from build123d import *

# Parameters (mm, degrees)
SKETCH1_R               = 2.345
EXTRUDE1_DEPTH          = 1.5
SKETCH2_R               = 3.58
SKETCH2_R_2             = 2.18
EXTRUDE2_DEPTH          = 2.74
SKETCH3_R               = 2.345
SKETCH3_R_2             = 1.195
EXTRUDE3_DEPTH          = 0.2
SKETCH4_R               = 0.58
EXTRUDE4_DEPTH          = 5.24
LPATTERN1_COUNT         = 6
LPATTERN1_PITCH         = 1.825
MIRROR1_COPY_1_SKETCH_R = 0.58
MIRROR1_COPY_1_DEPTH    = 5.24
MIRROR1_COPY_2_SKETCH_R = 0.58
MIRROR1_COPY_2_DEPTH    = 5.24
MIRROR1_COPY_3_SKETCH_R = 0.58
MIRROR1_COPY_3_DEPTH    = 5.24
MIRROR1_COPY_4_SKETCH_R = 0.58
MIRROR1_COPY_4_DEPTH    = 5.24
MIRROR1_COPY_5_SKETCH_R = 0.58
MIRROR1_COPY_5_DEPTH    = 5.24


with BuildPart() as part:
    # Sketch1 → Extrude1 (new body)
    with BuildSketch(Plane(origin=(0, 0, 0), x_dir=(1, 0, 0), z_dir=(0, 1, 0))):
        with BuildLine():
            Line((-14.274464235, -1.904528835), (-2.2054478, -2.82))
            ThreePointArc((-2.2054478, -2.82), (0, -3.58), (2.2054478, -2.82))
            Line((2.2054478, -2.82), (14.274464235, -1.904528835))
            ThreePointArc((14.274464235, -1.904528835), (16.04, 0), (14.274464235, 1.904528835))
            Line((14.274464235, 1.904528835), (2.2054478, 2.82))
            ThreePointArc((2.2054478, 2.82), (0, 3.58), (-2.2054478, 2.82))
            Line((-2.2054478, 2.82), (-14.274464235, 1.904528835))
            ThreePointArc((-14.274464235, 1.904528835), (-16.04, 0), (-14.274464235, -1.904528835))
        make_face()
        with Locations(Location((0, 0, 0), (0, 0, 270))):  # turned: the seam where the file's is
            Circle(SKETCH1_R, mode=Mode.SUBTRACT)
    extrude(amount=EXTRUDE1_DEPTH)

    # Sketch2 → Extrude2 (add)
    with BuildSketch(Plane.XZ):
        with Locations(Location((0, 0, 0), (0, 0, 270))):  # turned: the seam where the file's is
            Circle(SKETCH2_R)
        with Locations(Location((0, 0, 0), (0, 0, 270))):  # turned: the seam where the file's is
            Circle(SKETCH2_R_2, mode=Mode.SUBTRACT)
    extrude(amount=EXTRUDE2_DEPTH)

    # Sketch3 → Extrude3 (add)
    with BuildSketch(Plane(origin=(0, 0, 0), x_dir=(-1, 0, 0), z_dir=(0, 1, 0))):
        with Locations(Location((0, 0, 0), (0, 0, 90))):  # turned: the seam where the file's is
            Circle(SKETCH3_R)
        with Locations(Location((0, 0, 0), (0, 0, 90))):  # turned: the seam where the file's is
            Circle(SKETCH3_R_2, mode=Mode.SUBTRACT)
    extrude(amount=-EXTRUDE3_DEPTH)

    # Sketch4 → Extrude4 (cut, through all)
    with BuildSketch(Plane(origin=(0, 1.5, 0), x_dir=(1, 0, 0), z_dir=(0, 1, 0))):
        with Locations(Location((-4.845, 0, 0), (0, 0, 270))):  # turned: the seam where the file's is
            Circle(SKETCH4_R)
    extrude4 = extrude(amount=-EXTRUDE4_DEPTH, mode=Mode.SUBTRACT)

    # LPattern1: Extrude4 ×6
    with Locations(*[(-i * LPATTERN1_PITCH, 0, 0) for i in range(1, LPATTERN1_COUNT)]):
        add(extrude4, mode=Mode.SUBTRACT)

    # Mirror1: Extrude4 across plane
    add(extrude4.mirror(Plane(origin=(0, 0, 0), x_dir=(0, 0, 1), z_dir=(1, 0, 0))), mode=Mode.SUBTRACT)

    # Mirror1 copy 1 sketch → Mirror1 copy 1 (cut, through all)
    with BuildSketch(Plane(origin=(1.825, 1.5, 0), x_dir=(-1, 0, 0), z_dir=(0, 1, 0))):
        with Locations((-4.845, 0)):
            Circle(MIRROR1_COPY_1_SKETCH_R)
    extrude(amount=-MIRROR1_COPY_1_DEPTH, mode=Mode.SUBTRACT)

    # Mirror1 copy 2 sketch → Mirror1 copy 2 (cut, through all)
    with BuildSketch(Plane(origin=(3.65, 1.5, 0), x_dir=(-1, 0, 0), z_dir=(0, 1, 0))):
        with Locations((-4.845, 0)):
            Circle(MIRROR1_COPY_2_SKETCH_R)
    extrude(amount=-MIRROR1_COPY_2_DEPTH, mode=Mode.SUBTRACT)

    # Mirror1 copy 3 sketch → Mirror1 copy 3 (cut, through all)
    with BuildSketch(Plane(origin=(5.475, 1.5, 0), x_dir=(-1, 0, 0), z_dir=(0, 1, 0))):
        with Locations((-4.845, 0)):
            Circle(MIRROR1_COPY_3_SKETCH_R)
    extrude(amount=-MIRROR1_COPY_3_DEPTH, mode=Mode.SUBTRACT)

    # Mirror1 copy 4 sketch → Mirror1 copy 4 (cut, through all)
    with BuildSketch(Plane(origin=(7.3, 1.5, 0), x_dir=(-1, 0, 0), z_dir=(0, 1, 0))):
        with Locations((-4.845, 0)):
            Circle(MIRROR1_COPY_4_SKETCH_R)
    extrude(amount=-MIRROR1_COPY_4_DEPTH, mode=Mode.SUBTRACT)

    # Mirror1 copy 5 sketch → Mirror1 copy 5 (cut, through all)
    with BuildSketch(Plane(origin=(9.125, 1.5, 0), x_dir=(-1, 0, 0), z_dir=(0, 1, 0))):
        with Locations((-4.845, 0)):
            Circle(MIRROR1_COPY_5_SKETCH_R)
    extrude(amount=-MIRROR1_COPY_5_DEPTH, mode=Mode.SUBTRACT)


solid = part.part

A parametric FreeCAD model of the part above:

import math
import FreeCAD as App
import Part
import Sketcher
Q = App.Units.Quantity

doc = App.newDocument("Part")
params = doc.addObject("Spreadsheet::Sheet", "Params")
for row, (alias, value) in enumerate([
    ("sketch1_diameter", "4.69 mm"),
    ("sketch1_radius", "3.58 mm"),
    ("sketch1_radius2", "1.91 mm"),
    ("pad1_length", "1.5 mm"),
    ("sketch2_diameter", "7.16 mm"),
    ("sketch2_diameter2", "4.36 mm"),
    ("pad2_length", "2.74 mm"),
    ("sketch3_diameter", "4.69 mm"),
    ("sketch3_diameter2", "2.39 mm"),
    ("pad3_length", "0.2 mm"),
    ("sketch4_diameter", "1.16 mm"),
    ("linearpattern_pitch", "1.825 mm"),
    ("sketch5_diameter", "1.16 mm"),
    ("sketch6_diameter", "1.16 mm"),
    ("sketch7_diameter", "1.16 mm"),
    ("sketch8_diameter", "1.16 mm"),
    ("sketch9_diameter", "1.16 mm"),
], start=1):
    params.set(f"A{row}", alias)
    params.set(f"B{row}", "=" + value)
    params.setAlias(f"B{row}", alias)

body = doc.addObject("PartDesign::Body", "Body")

sketch1 = body.newObject("Sketcher::SketchObject", "Sketch")
sketch1.AttachmentSupport = (doc.getObject("XZ_Plane"), [""])
sketch1.MapMode = "FlatFace"
sketch1.addGeometry(Part.LineSegment(App.Vector(-14.274464, 1.904529, 0), App.Vector(-2.205448, 2.82, 0)), False)
sketch1.addGeometry(Part.ArcOfCircle(Part.Circle(App.Vector(0, 0, 0), App.Vector(0, 0, 1), 3.58), math.radians(51.971973), math.radians(128.028027)), False)
sketch1.addGeometry(Part.LineSegment(App.Vector(2.205448, 2.82, 0), App.Vector(14.274464, 1.904529, 0)), False)
sketch1.addGeometry(Part.ArcOfCircle(Part.Circle(App.Vector(14.13, 0, 0), App.Vector(0, 0, 1), 1.91), math.radians(-85.66225), math.radians(85.66225)), False)
sketch1.addGeometry(Part.LineSegment(App.Vector(14.274464, -1.904529, 0), App.Vector(2.205448, -2.82, 0)), False)
sketch1.addGeometry(Part.ArcOfCircle(Part.Circle(App.Vector(0, 0, 0), App.Vector(0, 0, 1), 3.58), math.radians(-128.028027), math.radians(-51.971973)), False)
sketch1.addGeometry(Part.LineSegment(App.Vector(-2.205448, -2.82, 0), App.Vector(-14.274464, -1.904529, 0)), False)
sketch1.addGeometry(Part.ArcOfCircle(Part.Circle(App.Vector(-14.13, 0, 0), App.Vector(0, 0, 1), 1.91), math.radians(94.33775), math.radians(265.66225)), False)
sketch1.addGeometry(Part.Circle(App.Vector(0, 0, 0), App.Vector(0, 0, 1), 2.345), False)
sketch1.addConstraint(Sketcher.Constraint("Coincident", 0, 2, 1, 2))
sketch1.addConstraint(Sketcher.Constraint("Coincident", 1, 1, 2, 1))
sketch1.addConstraint(Sketcher.Constraint("Tangent", 2, 2, 3, 2))
sketch1.addConstraint(Sketcher.Constraint("Tangent", 3, 1, 4, 1))
sketch1.addConstraint(Sketcher.Constraint("Coincident", 4, 2, 5, 2))
sketch1.addConstraint(Sketcher.Constraint("Coincident", 5, 1, 6, 1))
sketch1.addConstraint(Sketcher.Constraint("Tangent", 6, 2, 7, 2))
sketch1.addConstraint(Sketcher.Constraint("Tangent", 7, 1, 0, 1))
sketch1.addConstraint(Sketcher.Constraint("Coincident", 1, 3, -1, 1))
sketch1.addConstraint(Sketcher.Constraint("Coincident", 5, 3, -1, 1))
sketch1.addConstraint(Sketcher.Constraint("Coincident", 8, 3, -1, 1))
sketch1.addConstraint(Sketcher.Constraint("Equal", 1, 5))
sketch1.addConstraint(Sketcher.Constraint("Equal", 3, 7))
sketch1.addConstraint(Sketcher.Constraint("Symmetric", 3, 3, 7, 3, -1, 1))
sketch1.addConstraint(Sketcher.Constraint("Symmetric", 3, 1, 6, 2, -2))
sketch1.addConstraint(Sketcher.Constraint("Parallel", 0, 4))
sketch1.addConstraint(Sketcher.Constraint("Parallel", 2, 6))
sketch1.addConstraint(Sketcher.Constraint("Diameter", 8, Q("4.69 mm")))
sketch1.addConstraint(Sketcher.Constraint("Radius", 1, Q("3.58 mm")))
sketch1.addConstraint(Sketcher.Constraint("Radius", 3, Q("1.91 mm")))
sketch1.addConstraint(Sketcher.Constraint("DistanceX", -1, 1, 3, 3, Q("14.13 mm")))
sketch1.addConstraint(Sketcher.Constraint("DistanceY", -1, 1, 0, 2, Q("2.82 mm")))
sketch1.setExpression("Constraints[17]", "Params.sketch1_diameter")
sketch1.setExpression("Constraints[18]", "Params.sketch1_radius")
sketch1.setExpression("Constraints[19]", "Params.sketch1_radius2")
pad1 = body.newObject("PartDesign::Pad", "Pad")
pad1.Profile = sketch1
pad1.setExpression("Length", "Params.pad1_length")
pad1.Reversed = True

sketch2 = body.newObject("Sketcher::SketchObject", "Sketch001")
sketch2.AttachmentSupport = (doc.getObject("XZ_Plane"), [""])
sketch2.MapMode = "FlatFace"
sketch2.addGeometry(Part.Circle(App.Vector(0, 0, 0), App.Vector(0, 0, 1), 3.58), False)
sketch2.addGeometry(Part.Circle(App.Vector(0, 0, 0), App.Vector(0, 0, 1), 2.18), False)
sketch2.addConstraint(Sketcher.Constraint("Coincident", 0, 3, -1, 1))
sketch2.addConstraint(Sketcher.Constraint("Coincident", 1, 3, -1, 1))
sketch2.addConstraint(Sketcher.Constraint("Diameter", 0, Q("7.16 mm")))
sketch2.addConstraint(Sketcher.Constraint("Diameter", 1, Q("4.36 mm")))
sketch2.setExpression("Constraints[2]", "Params.sketch2_diameter")
sketch2.setExpression("Constraints[3]", "Params.sketch2_diameter2")
pad2 = body.newObject("PartDesign::Pad", "Pad001")
pad2.Profile = sketch2
pad2.setExpression("Length", "Params.pad2_length")

sketch3 = body.newObject("Sketcher::SketchObject", "Sketch002")
sketch3.AttachmentSupport = (doc.getObject("XZ_Plane"), [""])
sketch3.MapMode = "FlatFace"
sketch3.addGeometry(Part.Circle(App.Vector(0, 0, 0), App.Vector(0, 0, 1), 2.345), False)
sketch3.addGeometry(Part.Circle(App.Vector(0, 0, 0), App.Vector(0, 0, 1), 1.195), False)
sketch3.addConstraint(Sketcher.Constraint("Coincident", 0, 3, -1, 1))
sketch3.addConstraint(Sketcher.Constraint("Coincident", 1, 3, -1, 1))
sketch3.addConstraint(Sketcher.Constraint("Diameter", 0, Q("4.69 mm")))
sketch3.addConstraint(Sketcher.Constraint("Diameter", 1, Q("2.39 mm")))
sketch3.setExpression("Constraints[2]", "Params.sketch3_diameter")
sketch3.setExpression("Constraints[3]", "Params.sketch3_diameter2")
pad3 = body.newObject("PartDesign::Pad", "Pad002")
pad3.Profile = sketch3
pad3.setExpression("Length", "Params.pad3_length")

sketch4 = body.newObject("Sketcher::SketchObject", "Sketch003")
sketch4.AttachmentSupport = (doc.getObject("XZ_Plane"), [""])
sketch4.MapMode = "FlatFace"
sketch4.AttachmentOffset = App.Placement(App.Vector(0, 0, -1.5), App.Rotation())
sketch4.addGeometry(Part.Circle(App.Vector(-4.845, 0, 0), App.Vector(0, 0, 1), 0.58), False)
sketch4.addConstraint(Sketcher.Constraint("PointOnObject", 0, 3, -1))
sketch4.addConstraint(Sketcher.Constraint("Diameter", 0, Q("1.16 mm")))
sketch4.addConstraint(Sketcher.Constraint("DistanceX", 0, 3, -1, 1, Q("4.845 mm")))
sketch4.setExpression("Constraints[1]", "Params.sketch4_diameter")
pocket1 = body.newObject("PartDesign::Pocket", "Pocket")
pocket1.Profile = sketch4
pocket1.Type = "ThroughAll"
pocket1.Reversed = True
doc.recompute()

linearpattern = body.newObject("PartDesign::LinearPattern", "LinearPattern")
linearpattern.Originals = [pocket1]
linearpattern.Direction = (doc.getObject("X_Axis"), [""])
linearpattern.Mode = "offset"
linearpattern.setExpression("Offset", "Params.linearpattern_pitch")
linearpattern.Occurrences = 6
linearpattern.Reversed = True
body.Tip = linearpattern
doc.recompute()

mirrored = body.newObject("PartDesign::Mirrored", "Mirrored")
mirrored.Originals = [pocket1]
mirrored.MirrorPlane = (doc.getObject("YZ_Plane"), [""])
body.Tip = mirrored

sketch5 = body.newObject("Sketcher::SketchObject", "Sketch004")
sketch5.AttachmentSupport = (doc.getObject("XZ_Plane"), [""])
sketch5.MapMode = "FlatFace"
sketch5.AttachmentOffset = App.Placement(App.Vector(0, 0, -1.5), App.Rotation())
sketch5.addGeometry(Part.Circle(App.Vector(6.67, 0, 0), App.Vector(0, 0, 1), 0.58), False)
sketch5.addConstraint(Sketcher.Constraint("PointOnObject", 0, 3, -1))
sketch5.addConstraint(Sketcher.Constraint("Diameter", 0, Q("1.16 mm")))
sketch5.addConstraint(Sketcher.Constraint("DistanceX", -1, 1, 0, 3, Q("6.67 mm")))
sketch5.setExpression("Constraints[1]", "Params.sketch5_diameter")
pocket2 = body.newObject("PartDesign::Pocket", "Pocket001")
pocket2.Profile = sketch5
pocket2.Type = "ThroughAll"
pocket2.Reversed = True

sketch6 = body.newObject("Sketcher::SketchObject", "Sketch005")
sketch6.AttachmentSupport = (doc.getObject("XZ_Plane"), [""])
sketch6.MapMode = "FlatFace"
sketch6.AttachmentOffset = App.Placement(App.Vector(0, 0, -1.5), App.Rotation())
sketch6.addGeometry(Part.Circle(App.Vector(8.495, 0, 0), App.Vector(0, 0, 1), 0.58), False)
sketch6.addConstraint(Sketcher.Constraint("PointOnObject", 0, 3, -1))
sketch6.addConstraint(Sketcher.Constraint("Diameter", 0, Q("1.16 mm")))
sketch6.addConstraint(Sketcher.Constraint("DistanceX", -1, 1, 0, 3, Q("8.495 mm")))
sketch6.setExpression("Constraints[1]", "Params.sketch6_diameter")
pocket3 = body.newObject("PartDesign::Pocket", "Pocket002")
pocket3.Profile = sketch6
pocket3.Type = "ThroughAll"
pocket3.Reversed = True

sketch7 = body.newObject("Sketcher::SketchObject", "Sketch006")
sketch7.AttachmentSupport = (doc.getObject("XZ_Plane"), [""])
sketch7.MapMode = "FlatFace"
sketch7.AttachmentOffset = App.Placement(App.Vector(0, 0, -1.5), App.Rotation())
sketch7.addGeometry(Part.Circle(App.Vector(10.32, 0, 0), App.Vector(0, 0, 1), 0.58), False)
sketch7.addConstraint(Sketcher.Constraint("PointOnObject", 0, 3, -1))
sketch7.addConstraint(Sketcher.Constraint("Diameter", 0, Q("1.16 mm")))
sketch7.addConstraint(Sketcher.Constraint("DistanceX", -1, 1, 0, 3, Q("10.32 mm")))
sketch7.setExpression("Constraints[1]", "Params.sketch7_diameter")
pocket4 = body.newObject("PartDesign::Pocket", "Pocket003")
pocket4.Profile = sketch7
pocket4.Type = "ThroughAll"
pocket4.Reversed = True

sketch8 = body.newObject("Sketcher::SketchObject", "Sketch007")
sketch8.AttachmentSupport = (doc.getObject("XZ_Plane"), [""])
sketch8.MapMode = "FlatFace"
sketch8.AttachmentOffset = App.Placement(App.Vector(0, 0, -1.5), App.Rotation())
sketch8.addGeometry(Part.Circle(App.Vector(12.145, 0, 0), App.Vector(0, 0, 1), 0.58), False)
sketch8.addConstraint(Sketcher.Constraint("PointOnObject", 0, 3, -1))
sketch8.addConstraint(Sketcher.Constraint("Diameter", 0, Q("1.16 mm")))
sketch8.addConstraint(Sketcher.Constraint("DistanceX", -1, 1, 0, 3, Q("12.145 mm")))
sketch8.setExpression("Constraints[1]", "Params.sketch8_diameter")
pocket5 = body.newObject("PartDesign::Pocket", "Pocket004")
pocket5.Profile = sketch8
pocket5.Type = "ThroughAll"
pocket5.Reversed = True

sketch9 = body.newObject("Sketcher::SketchObject", "Sketch008")
sketch9.AttachmentSupport = (doc.getObject("XZ_Plane"), [""])
sketch9.MapMode = "FlatFace"
sketch9.AttachmentOffset = App.Placement(App.Vector(0, 0, -1.5), App.Rotation())
sketch9.addGeometry(Part.Circle(App.Vector(13.97, 0, 0), App.Vector(0, 0, 1), 0.58), False)
sketch9.addConstraint(Sketcher.Constraint("PointOnObject", 0, 3, -1))
sketch9.addConstraint(Sketcher.Constraint("Diameter", 0, Q("1.16 mm")))
sketch9.addConstraint(Sketcher.Constraint("DistanceX", -1, 1, 0, 3, Q("13.97 mm")))
sketch9.setExpression("Constraints[1]", "Params.sketch9_diameter")
pocket6 = body.newObject("PartDesign::Pocket", "Pocket005")
pocket6.Profile = sketch9
pocket6.Type = "ThroughAll"
pocket6.Reversed = True

doc.recompute()
